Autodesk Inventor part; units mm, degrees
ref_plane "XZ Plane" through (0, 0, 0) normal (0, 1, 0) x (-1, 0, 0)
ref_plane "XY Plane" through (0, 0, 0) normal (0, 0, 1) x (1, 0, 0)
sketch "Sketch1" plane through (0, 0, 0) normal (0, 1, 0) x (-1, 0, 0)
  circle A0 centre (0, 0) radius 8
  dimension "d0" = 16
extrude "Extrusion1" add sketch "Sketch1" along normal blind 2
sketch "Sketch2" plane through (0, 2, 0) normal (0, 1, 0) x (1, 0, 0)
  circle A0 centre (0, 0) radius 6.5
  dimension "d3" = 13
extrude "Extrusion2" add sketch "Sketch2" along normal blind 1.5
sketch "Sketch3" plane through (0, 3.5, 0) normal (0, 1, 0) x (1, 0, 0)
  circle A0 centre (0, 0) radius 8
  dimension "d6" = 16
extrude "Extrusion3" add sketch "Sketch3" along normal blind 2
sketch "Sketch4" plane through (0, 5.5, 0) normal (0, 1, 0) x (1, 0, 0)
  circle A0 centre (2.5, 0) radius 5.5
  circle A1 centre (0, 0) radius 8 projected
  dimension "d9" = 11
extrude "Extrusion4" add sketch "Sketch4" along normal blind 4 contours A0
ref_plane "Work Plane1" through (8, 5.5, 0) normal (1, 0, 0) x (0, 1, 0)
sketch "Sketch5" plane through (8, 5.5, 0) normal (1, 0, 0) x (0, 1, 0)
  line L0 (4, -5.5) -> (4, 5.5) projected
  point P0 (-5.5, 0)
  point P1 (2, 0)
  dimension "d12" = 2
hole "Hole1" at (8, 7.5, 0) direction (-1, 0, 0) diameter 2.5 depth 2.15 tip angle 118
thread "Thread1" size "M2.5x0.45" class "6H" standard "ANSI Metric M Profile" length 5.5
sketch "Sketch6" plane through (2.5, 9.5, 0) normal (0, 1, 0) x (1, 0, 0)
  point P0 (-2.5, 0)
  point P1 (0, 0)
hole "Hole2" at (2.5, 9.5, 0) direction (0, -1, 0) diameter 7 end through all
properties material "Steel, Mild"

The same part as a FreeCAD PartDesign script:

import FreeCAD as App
import Part
import Sketcher
from FreeCAD import Vector
Q = App.Units.Quantity

doc = App.newDocument("Part")
body = doc.addObject("PartDesign::Body", "Body")

# Sketch on XZ plane
sketch1 = body.newObject("Sketcher::SketchObject", "Sketch")
sketch1.AttachmentSupport = (doc.getObject("XZ_Plane"), [""])
sketch1.MapMode = "FlatFace"
sketch1.addGeometry(Part.Circle(Vector(0, 0, 0), Vector(0, 0, 1), 8), False)
sketch1.addConstraint(Sketcher.Constraint("Coincident", 0, 3, -1, 1))
sketch1.addConstraint(Sketcher.Constraint("Diameter", 0, Q("16 mm")))
pad1 = body.newObject("PartDesign::Pad", "Pad")
pad1.Profile = sketch1
pad1.Length = 2
pad1.Reversed = True

# Sketch on XZ plane
sketch2 = body.newObject("Sketcher::SketchObject", "Sketch001")
sketch2.AttachmentSupport = (doc.getObject("XZ_Plane"), [""])
sketch2.MapMode = "FlatFace"
sketch2.AttachmentOffset = App.Placement(Vector(0, 0, -2), App.Rotation())
sketch2.addGeometry(Part.Circle(Vector(0, 0, 0), Vector(0, 0, 1), 6), False)
sketch2.addConstraint(Sketcher.Constraint("Coincident", 0, 3, -1, 1))
sketch2.addConstraint(Sketcher.Constraint("Diameter", 0, Q("13 mm")))
pad2 = body.newObject("PartDesign::Pad", "Pad001")
pad2.Profile = sketch2
pad2.Length = 1.5
pad2.Reversed = True

# Sketch on XZ plane
sketch3 = body.newObject("Sketcher::SketchObject", "Sketch002")
sketch3.AttachmentSupport = (doc.getObject("XZ_Plane"), [""])
sketch3.MapMode = "FlatFace"
sketch3.AttachmentOffset = App.Placement(Vector(0, 0, -3.5), App.Rotation())
sketch3.addGeometry(Part.Circle(Vector(0, 0, 0), Vector(0, 0, 1), 8), False)
sketch3.addConstraint(Sketcher.Constraint("Coincident", 0, 3, -1, 1))
sketch3.addConstraint(Sketcher.Constraint("Diameter", 0, Q("16 mm")))
pad3 = body.newObject("PartDesign::Pad", "Pad002")
pad3.Profile = sketch3
pad3.Length = 2
pad3.Reversed = True

# Sketch on XZ plane
sketch4 = body.newObject("Sketcher::SketchObject", "Sketch003")
sketch4.AttachmentSupport = (doc.getObject("XZ_Plane"), [""])
sketch4.MapMode = "FlatFace"
sketch4.AttachmentOffset = App.Placement(Vector(0, 0, -5.5), App.Rotation())
sketch4.addGeometry(Part.Circle(Vector(2, 0, 0), Vector(0, 0, 1), 6), False)
sketch4.addConstraint(Sketcher.Constraint("PointOnObject", 0, 3, -1))
sketch4.addConstraint(Sketcher.Constraint("Diameter", 0, Q("11 mm")))
sketch4.addConstraint(Sketcher.Constraint("DistanceX", -1, 1, 0, 3, Q("2.5 mm")))
pad4 = body.newObject("PartDesign::Pad", "Pad003")
pad4.Profile = sketch4
pad4.Length = 4
pad4.Reversed = True

# Sketch on YZ plane
sketch5 = body.newObject("Sketcher::SketchObject", "Sketch004")
sketch5.AttachmentSupport = (doc.getObject("YZ_Plane"), [""])
sketch5.MapMode = "FlatFace"
sketch5.AttachmentOffset = App.Placement(Vector(0, 0, 8), App.Rotation())
sketch5.addGeometry(Part.Circle(Vector(7.5, 0, 0), Vector(0, 0, 1), 1.2), False)
sketch5.addConstraint(Sketcher.Constraint("PointOnObject", 0, 3, -1))
sketch5.addConstraint(Sketcher.Constraint("Diameter", 0, Q("2.5 mm")))
sketch5.addConstraint(Sketcher.Constraint("DistanceX", -1, 1, 0, 3, Q("7.5 mm")))
doc.recompute()
hole = body.newObject("PartDesign::Hole", "Hole")
hole.Profile = sketch5
hole.ThreadType = "None"
hole.Diameter = 2.5
hole.DepthType = "Dimension"
hole.Depth = 2.15
hole.DrillPoint = "Angled"
hole.DrillPointAngle = 118

# Sketch on XZ plane
sketch6 = body.newObject("Sketcher::SketchObject", "Sketch005")
sketch6.AttachmentSupport = (doc.getObject("XZ_Plane"), [""])
sketch6.MapMode = "FlatFace"
sketch6.AttachmentOffset = App.Placement(Vector(0, 0, -9.5), App.Rotation())
sketch6.addGeometry(Part.Circle(Vector(2.5, 0, 0), Vector(0, 0, 1), 3.5), False)
sketch6.addConstraint(Sketcher.Constraint("PointOnObject", 0, 3, -1))
sketch6.addConstraint(Sketcher.Constraint("Diameter", 0, Q("7 mm")))
sketch6.addConstraint(Sketcher.Constraint("DistanceX", -1, 1, 0, 3, Q("2.5 mm")))
doc.recompute()
hole2 = body.newObject("PartDesign::Hole", "Hole001")
hole2.Profile = sketch6
hole2.ThreadType = "None"
hole2.Diameter = 7
hole2.DepthType = "ThroughAll"
hole2.Reversed = True

doc.recompute()
